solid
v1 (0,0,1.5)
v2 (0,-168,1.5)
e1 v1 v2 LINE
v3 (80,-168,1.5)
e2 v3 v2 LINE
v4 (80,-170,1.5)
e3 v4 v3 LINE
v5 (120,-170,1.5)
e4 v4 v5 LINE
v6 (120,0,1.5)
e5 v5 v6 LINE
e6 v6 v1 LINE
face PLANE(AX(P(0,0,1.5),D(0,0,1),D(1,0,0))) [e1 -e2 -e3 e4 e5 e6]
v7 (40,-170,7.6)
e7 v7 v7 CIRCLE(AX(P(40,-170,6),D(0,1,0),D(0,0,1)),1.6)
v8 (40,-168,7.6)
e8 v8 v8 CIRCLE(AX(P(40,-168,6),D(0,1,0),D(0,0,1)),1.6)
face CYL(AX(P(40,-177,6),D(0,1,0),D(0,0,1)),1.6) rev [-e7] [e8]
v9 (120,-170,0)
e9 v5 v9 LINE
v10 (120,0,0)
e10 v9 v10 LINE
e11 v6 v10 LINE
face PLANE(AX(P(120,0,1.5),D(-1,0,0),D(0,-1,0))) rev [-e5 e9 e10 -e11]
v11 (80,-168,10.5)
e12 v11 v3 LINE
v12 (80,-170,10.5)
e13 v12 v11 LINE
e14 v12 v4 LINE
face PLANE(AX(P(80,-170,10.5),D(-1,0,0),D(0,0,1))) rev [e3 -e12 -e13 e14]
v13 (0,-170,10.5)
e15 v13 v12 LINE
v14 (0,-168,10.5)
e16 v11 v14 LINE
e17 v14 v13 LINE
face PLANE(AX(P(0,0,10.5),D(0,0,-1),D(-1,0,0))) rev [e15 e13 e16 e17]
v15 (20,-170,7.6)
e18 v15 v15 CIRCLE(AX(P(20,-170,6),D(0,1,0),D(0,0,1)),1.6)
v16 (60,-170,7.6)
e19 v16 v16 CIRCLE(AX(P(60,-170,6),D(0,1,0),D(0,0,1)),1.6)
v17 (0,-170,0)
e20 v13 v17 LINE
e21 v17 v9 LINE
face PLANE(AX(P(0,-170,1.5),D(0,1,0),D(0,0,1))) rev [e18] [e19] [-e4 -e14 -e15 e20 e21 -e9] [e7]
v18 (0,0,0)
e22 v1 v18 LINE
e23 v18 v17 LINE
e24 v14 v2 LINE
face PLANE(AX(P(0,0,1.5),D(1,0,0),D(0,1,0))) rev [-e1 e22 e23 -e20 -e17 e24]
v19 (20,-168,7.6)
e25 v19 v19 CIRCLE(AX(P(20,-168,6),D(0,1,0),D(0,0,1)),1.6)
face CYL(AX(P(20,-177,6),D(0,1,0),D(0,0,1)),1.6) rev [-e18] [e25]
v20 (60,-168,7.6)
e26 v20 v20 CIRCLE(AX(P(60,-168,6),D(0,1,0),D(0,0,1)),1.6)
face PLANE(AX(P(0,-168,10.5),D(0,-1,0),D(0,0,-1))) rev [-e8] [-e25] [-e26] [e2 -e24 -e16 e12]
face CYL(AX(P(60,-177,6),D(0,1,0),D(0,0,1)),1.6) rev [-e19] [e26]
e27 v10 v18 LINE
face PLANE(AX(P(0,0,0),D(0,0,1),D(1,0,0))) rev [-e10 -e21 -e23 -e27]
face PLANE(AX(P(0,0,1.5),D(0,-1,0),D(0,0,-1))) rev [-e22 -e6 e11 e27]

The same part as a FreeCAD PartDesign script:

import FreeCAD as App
import Part
import Sketcher
Q = App.Units.Quantity

doc = App.newDocument("Part")
params = doc.addObject("Spreadsheet::Sheet", "Params")
for row, (alias, value) in enumerate([
    ("sketch1_width", "120 mm"),
    ("sketch1_height", "170 mm"),
    ("pad1_length", "1.5 mm"),
    ("sketch2_width", "80 mm"),
    ("sketch2_height", "2 mm"),
    ("pad2_length", "9 mm"),
    ("sketch3_diameter", "3.2 mm"),
    ("pocket1_length", "9 mm"),
], start=1):
    params.set(f"A{row}", alias)
    params.set(f"B{row}", "=" + value)
    params.setAlias(f"B{row}", alias)

body = doc.addObject("PartDesign::Body", "Body")

# Sketch on XY plane
sketch1 = body.newObject("Sketcher::SketchObject", "Sketch")
sketch1.AttachmentSupport = (doc.getObject("XY_Plane"), [""])
sketch1.MapMode = "FlatFace"
sketch1.addGeometry([
    Part.LineSegment(App.Vector(0, 0, 0), App.Vector(0, -170, 0)),
    Part.LineSegment(App.Vector(0, -170, 0), App.Vector(120, -170, 0)),
    Part.LineSegment(App.Vector(120, -170, 0), App.Vector(120, 0, 0)),
    Part.LineSegment(App.Vector(120, 0, 0), App.Vector(0, 0, 0)),
], False)
sketch1.addConstraint([
    Sketcher.Constraint("Coincident", 0, 2, 1, 1),
    Sketcher.Constraint("Coincident", 1, 2, 2, 1),
    Sketcher.Constraint("Coincident", 2, 2, 3, 1),
    Sketcher.Constraint("Coincident", 3, 2, 0, 1),
    Sketcher.Constraint("Vertical", 0),
    Sketcher.Constraint("Horizontal", 1),
    Sketcher.Constraint("Vertical", 2),
    Sketcher.Constraint("Horizontal", 3),
    Sketcher.Constraint("Coincident", 3, 2, -1, 1),
    Sketcher.Constraint("DistanceX", 1, 1, 1, 2, Q("120 mm")),
    Sketcher.Constraint("DistanceY", 0, 2, 0, 1, Q("170 mm")),
])
sketch1.setExpression("Constraints[9]", "Params.sketch1_width")
sketch1.setExpression("Constraints[10]", "Params.sketch1_height")
pad1 = body.newObject("PartDesign::Pad", "Pad")
pad1.Profile = sketch1
pad1.setExpression("Length", "Params.pad1_length")

# Sketch on XY plane
sketch2 = body.newObject("Sketcher::SketchObject", "Sketch001")
sketch2.AttachmentSupport = (doc.getObject("XY_Plane"), [""])
sketch2.MapMode = "FlatFace"
sketch2.AttachmentOffset = App.Placement(App.Vector(0, 0, 1.5), App.Rotation())
sketch2.addGeometry([
    Part.LineSegment(App.Vector(0, -168, 0), App.Vector(0, -170, 0)),
    Part.LineSegment(App.Vector(0, -170, 0), App.Vector(80, -170, 0)),
    Part.LineSegment(App.Vector(80, -170, 0), App.Vector(80, -168, 0)),
    Part.LineSegment(App.Vector(80, -168, 0), App.Vector(0, -168, 0)),
], False)
sketch2.addConstraint([
    Sketcher.Constraint("Coincident", 0, 2, 1, 1),
    Sketcher.Constraint("Coincident", 1, 2, 2, 1),
    Sketcher.Constraint("Coincident", 2, 2, 3, 1),
    Sketcher.Constraint("Coincident", 3, 2, 0, 1),
    Sketcher.Constraint("Vertical", 0),
    Sketcher.Constraint("Horizontal", 1),
    Sketcher.Constraint("Vertical", 2),
    Sketcher.Constraint("Horizontal", 3),
    Sketcher.Constraint("PointOnObject", 0, 2, -2),
    Sketcher.Constraint("DistanceX", 1, 1, 1, 2, Q("80 mm")),
    Sketcher.Constraint("DistanceY", 0, 2, 0, 1, Q("2 mm")),
    Sketcher.Constraint("DistanceY", 0, 2, -1, 1, Q("170 mm")),
])
sketch2.setExpression("Constraints[9]", "Params.sketch2_width")
sketch2.setExpression("Constraints[10]", "Params.sketch2_height")
pad2 = body.newObject("PartDesign::Pad", "Pad001")
pad2.Profile = sketch2
pad2.setExpression("Length", "Params.pad2_length")

# Sketch on XZ plane
sketch3 = body.newObject("Sketcher::SketchObject", "Sketch002")
sketch3.AttachmentSupport = (doc.getObject("XZ_Plane"), [""])
sketch3.MapMode = "FlatFace"
sketch3.AttachmentOffset = App.Placement(App.Vector(0, 0, 168), App.Rotation())
sketch3.addGeometry([
    Part.Circle(App.Vector(20, 6, 0), App.Vector(0, 0, 1), 1.6),
    Part.Circle(App.Vector(40, 6, 0), App.Vector(0, 0, 1), 1.6),
    Part.Circle(App.Vector(60, 6, 0), App.Vector(0, 0, 1), 1.6),
], False)
sketch3.addConstraint([
    Sketcher.Constraint("Equal", 0, 1),
    Sketcher.Constraint("Equal", 1, 2),
    Sketcher.Constraint("Horizontal", 0, 3, 1, 3),
    Sketcher.Constraint("Horizontal", 1, 3, 2, 3),
    Sketcher.Constraint("Diameter", 0, Q("3.2 mm")),
    Sketcher.Constraint("DistanceX", -1, 1, 0, 3, Q("20 mm")),
    Sketcher.Constraint("DistanceY", -1, 1, 0, 3, Q("6 mm")),
    Sketcher.Constraint("DistanceX", -1, 1, 1, 3, Q("40 mm")),
    Sketcher.Constraint("DistanceX", -1, 1, 2, 3, Q("60 mm")),
])
sketch3.setExpression("Constraints[4]", "Params.sketch3_diameter")
pocket1 = body.newObject("PartDesign::Pocket", "Pocket")
pocket1.Profile = sketch3
pocket1.setExpression("Length", "Params.pocket1_length")
pocket1.Reversed = True

doc.recompute()
